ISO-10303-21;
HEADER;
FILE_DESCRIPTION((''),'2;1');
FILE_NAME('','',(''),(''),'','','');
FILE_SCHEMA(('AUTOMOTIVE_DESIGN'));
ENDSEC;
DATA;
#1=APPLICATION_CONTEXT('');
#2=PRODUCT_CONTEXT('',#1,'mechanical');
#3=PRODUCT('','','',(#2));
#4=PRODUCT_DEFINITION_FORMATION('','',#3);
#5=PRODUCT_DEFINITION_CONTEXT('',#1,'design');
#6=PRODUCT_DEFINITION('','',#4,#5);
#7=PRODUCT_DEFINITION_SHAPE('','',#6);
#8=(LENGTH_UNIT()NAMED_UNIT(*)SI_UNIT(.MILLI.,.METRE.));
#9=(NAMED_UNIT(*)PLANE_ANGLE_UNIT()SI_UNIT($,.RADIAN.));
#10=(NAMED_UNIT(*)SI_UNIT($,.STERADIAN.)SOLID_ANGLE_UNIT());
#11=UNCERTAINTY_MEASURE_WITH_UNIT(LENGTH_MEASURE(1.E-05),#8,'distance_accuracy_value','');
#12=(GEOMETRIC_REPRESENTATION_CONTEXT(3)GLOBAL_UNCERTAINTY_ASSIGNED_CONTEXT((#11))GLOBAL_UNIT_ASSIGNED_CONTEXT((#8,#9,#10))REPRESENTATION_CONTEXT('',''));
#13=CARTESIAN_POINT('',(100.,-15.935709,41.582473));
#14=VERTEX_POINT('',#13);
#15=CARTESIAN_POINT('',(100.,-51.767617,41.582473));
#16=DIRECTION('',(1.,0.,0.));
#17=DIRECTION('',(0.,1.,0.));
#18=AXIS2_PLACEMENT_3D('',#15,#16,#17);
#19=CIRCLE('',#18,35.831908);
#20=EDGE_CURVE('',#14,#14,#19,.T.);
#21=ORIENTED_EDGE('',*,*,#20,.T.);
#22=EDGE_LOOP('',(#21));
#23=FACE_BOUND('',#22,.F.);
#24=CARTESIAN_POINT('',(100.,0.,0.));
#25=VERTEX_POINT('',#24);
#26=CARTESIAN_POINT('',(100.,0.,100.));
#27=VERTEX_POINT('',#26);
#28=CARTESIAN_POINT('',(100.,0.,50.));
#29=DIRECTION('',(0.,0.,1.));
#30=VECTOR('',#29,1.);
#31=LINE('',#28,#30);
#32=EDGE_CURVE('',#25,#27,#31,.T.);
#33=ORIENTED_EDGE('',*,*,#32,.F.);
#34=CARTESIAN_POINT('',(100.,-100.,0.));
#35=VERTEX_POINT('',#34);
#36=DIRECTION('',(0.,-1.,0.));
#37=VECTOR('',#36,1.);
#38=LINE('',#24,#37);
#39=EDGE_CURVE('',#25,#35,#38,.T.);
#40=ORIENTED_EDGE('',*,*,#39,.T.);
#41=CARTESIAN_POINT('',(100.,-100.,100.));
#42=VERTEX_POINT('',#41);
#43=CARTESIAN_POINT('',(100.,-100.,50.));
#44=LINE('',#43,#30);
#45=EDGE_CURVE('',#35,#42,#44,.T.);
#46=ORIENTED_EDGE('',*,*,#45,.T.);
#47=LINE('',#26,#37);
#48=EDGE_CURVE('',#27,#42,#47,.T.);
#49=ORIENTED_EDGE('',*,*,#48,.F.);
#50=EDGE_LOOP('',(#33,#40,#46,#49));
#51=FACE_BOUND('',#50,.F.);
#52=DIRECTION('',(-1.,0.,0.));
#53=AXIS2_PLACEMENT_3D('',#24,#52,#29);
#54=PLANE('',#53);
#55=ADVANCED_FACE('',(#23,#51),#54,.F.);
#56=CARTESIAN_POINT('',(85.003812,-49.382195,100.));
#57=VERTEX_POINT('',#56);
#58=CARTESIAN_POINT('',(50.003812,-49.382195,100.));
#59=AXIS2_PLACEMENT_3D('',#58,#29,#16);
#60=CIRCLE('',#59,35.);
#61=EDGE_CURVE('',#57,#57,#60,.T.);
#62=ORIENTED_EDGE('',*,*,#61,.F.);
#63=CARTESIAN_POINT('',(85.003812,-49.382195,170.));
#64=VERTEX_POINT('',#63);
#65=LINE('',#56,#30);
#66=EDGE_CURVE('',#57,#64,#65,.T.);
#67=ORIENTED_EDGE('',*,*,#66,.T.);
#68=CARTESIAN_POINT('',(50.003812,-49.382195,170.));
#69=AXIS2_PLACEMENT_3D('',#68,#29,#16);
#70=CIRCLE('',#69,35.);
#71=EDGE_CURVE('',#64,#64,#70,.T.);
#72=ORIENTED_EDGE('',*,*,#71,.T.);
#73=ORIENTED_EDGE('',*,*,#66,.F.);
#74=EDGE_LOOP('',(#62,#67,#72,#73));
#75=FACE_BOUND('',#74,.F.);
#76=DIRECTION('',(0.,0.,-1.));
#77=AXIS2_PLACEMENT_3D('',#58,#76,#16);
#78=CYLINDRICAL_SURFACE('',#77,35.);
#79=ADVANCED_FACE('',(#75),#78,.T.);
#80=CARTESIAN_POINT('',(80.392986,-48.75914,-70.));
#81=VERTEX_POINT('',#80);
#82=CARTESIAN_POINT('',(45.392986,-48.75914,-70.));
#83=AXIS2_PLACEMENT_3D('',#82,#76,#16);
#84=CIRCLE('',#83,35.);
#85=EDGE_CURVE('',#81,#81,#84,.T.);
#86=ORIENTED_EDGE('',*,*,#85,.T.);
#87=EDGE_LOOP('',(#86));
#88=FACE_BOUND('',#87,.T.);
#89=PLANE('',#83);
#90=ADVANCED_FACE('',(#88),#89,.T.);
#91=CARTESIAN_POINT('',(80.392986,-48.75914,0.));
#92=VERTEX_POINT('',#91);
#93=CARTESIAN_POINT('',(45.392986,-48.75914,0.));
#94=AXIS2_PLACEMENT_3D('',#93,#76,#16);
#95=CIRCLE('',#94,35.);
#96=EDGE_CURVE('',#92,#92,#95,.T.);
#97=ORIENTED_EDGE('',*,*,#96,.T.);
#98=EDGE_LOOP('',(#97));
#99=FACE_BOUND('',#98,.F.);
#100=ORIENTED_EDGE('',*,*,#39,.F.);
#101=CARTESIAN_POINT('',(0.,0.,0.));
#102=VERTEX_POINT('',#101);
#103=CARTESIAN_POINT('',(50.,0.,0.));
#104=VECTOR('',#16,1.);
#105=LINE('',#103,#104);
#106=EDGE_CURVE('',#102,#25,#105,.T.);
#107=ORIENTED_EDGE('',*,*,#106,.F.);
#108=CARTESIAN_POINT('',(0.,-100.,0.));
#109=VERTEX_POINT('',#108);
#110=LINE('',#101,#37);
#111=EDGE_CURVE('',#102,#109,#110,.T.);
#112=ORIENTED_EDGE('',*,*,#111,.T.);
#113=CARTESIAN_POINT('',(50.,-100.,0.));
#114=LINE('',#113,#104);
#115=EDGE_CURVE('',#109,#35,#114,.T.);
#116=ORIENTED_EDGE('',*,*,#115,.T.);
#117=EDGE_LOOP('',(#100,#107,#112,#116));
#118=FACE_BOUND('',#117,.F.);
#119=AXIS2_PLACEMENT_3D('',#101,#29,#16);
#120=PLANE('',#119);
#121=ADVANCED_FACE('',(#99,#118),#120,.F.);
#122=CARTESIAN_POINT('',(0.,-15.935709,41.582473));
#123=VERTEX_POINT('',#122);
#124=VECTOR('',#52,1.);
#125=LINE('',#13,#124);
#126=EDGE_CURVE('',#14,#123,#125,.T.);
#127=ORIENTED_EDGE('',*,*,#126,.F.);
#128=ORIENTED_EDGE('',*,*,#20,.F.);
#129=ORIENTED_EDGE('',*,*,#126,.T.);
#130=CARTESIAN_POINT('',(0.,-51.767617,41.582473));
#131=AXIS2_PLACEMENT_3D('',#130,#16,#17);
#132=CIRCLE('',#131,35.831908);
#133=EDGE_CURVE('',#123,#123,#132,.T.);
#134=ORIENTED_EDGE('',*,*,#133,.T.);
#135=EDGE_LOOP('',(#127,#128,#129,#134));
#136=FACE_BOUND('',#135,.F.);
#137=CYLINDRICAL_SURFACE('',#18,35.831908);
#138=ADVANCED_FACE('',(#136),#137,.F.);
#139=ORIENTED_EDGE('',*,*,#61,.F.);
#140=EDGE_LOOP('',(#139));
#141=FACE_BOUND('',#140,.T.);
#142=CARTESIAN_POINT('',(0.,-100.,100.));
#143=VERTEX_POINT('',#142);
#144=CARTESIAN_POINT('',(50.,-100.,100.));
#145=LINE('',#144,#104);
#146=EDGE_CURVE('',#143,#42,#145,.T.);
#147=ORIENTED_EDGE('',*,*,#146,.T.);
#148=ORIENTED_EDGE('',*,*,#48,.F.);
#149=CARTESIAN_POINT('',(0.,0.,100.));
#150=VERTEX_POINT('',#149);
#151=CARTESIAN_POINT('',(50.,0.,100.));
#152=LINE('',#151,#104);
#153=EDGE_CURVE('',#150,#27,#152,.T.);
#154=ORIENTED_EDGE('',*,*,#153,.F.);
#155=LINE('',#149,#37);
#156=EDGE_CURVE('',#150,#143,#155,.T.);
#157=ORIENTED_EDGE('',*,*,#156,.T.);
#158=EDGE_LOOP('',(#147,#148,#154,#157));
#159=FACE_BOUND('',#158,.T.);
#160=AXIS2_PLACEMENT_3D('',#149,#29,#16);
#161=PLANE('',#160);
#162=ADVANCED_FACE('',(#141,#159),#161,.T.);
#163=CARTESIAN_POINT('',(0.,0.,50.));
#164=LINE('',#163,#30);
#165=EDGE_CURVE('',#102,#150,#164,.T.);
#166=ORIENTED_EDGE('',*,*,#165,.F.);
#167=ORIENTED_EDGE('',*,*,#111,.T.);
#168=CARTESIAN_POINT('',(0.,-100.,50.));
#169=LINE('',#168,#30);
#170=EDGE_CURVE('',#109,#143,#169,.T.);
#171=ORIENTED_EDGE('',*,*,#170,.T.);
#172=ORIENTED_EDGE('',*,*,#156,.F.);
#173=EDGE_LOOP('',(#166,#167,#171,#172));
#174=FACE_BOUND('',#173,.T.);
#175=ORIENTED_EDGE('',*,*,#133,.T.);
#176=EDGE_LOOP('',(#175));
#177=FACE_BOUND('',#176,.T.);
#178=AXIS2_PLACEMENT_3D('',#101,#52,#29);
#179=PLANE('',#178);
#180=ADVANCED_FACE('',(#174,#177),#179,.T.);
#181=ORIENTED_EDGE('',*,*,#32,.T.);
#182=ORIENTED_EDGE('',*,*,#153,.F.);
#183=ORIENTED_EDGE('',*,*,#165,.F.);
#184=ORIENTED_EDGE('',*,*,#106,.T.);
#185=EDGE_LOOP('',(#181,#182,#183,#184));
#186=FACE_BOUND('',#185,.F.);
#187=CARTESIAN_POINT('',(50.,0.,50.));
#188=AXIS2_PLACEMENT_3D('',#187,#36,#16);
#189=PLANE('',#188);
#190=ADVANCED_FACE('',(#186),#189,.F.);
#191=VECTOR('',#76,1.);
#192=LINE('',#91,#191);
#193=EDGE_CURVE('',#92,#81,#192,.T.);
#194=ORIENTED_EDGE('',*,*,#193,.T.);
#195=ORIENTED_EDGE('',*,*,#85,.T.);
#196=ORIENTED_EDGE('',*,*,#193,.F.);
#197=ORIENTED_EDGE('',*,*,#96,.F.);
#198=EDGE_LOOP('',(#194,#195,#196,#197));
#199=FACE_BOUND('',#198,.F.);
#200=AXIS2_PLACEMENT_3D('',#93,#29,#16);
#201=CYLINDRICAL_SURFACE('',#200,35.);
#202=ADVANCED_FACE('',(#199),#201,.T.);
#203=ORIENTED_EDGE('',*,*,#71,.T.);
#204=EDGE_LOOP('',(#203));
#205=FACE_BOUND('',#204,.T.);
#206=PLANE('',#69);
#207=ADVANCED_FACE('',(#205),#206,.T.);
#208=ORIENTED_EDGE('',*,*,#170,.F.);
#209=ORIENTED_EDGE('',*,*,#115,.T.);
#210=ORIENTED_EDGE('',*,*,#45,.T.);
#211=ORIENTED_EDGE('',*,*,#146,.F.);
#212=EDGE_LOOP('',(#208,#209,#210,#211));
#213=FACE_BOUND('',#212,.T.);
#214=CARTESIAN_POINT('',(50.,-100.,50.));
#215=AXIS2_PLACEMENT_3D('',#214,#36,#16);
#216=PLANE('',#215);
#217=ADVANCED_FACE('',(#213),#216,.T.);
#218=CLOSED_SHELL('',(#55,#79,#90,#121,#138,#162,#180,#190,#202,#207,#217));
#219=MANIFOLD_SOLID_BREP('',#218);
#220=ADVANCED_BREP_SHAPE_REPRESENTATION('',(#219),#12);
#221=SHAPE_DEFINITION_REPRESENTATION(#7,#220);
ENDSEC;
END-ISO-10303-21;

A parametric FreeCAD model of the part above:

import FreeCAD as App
import Part
import Sketcher

V = App.Vector
Q = App.Units.Quantity

doc = App.newDocument("Part")
params = doc.addObject("Spreadsheet::Sheet", "Params")
for row, (alias, value) in enumerate([
    ("sketch1_width", "100 mm"),
    ("pad1_length", "100 mm"),
    ("sketch2_diameter", "70 mm"),
    ("pad2_length", "70 mm"),
    ("sketch3_diameter", "70 mm"),
    ("pad3_length", "70 mm"),
], start=1):
    params.set(f"A{row}", alias)
    params.set(f"B{row}", "=" + value)
    params.setAlias(f"B{row}", alias)

body = doc.addObject("PartDesign::Body", "Body")

# Sketch on XZ plane
sketch1 = body.newObject("Sketcher::SketchObject", "Sketch")
sketch1.AttachmentSupport = (doc.getObject("XZ_Plane"), [""])
sketch1.MapMode = "FlatFace"
sketch1.addGeometry(Part.LineSegment(V(0, 100, 0), V(0, 0, 0)), False)
sketch1.addGeometry(Part.LineSegment(V(0, 0, 0), V(100, 0, 0)), False)
sketch1.addGeometry(Part.LineSegment(V(100, 0, 0), V(100, 100, 0)), False)
sketch1.addGeometry(Part.LineSegment(V(100, 100, 0), V(0, 100, 0)), False)
sketch1.addConstraint(Sketcher.Constraint("Coincident", 0, 2, 1, 1))
sketch1.addConstraint(Sketcher.Constraint("Coincident", 1, 2, 2, 1))
sketch1.addConstraint(Sketcher.Constraint("Coincident", 2, 2, 3, 1))
sketch1.addConstraint(Sketcher.Constraint("Coincident", 3, 2, 0, 1))
sketch1.addConstraint(Sketcher.Constraint("Vertical", 0))
sketch1.addConstraint(Sketcher.Constraint("Horizontal", 1))
sketch1.addConstraint(Sketcher.Constraint("Vertical", 2))
sketch1.addConstraint(Sketcher.Constraint("Horizontal", 3))
sketch1.addConstraint(Sketcher.Constraint("Coincident", 0, 2, -1, 1))
sketch1.addConstraint(Sketcher.Constraint("Equal", 3, 0))
sketch1.addConstraint(Sketcher.Constraint("DistanceX", 1, 1, 1, 2, Q("100 mm")))
sketch1.setExpression("Constraints[10]", "Params.sketch1_width")
pad1 = body.newObject("PartDesign::Pad", "Pad")
pad1.Profile = sketch1
pad1.setExpression("Length", "Params.pad1_length")

# Sketch on XY plane
sketch2 = body.newObject("Sketcher::SketchObject", "Sketch001")
sketch2.AttachmentSupport = (doc.getObject("XY_Plane"), [""])
sketch2.MapMode = "FlatFace"
sketch2.AttachmentOffset = App.Placement(V(0, 0, 100), App.Rotation())
sketch2.addGeometry(Part.Circle(V(50, -49, 0), V(0, 0, 1), 35), False)
sketch2.addConstraint(Sketcher.Constraint("Diameter", 0, Q("70 mm")))
sketch2.addConstraint(Sketcher.Constraint("DistanceX", -1, 1, 0, 3, Q("50.003812 mm")))
sketch2.addConstraint(Sketcher.Constraint("DistanceY", 0, 3, -1, 1, Q("49.382195 mm")))
sketch2.setExpression("Constraints[0]", "Params.sketch2_diameter")
pad2 = body.newObject("PartDesign::Pad", "Pad001")
pad2.Profile = sketch2
pad2.setExpression("Length", "Params.pad2_length")

# Sketch on XY plane
sketch3 = body.newObject("Sketcher::SketchObject", "Sketch002")
sketch3.AttachmentSupport = (doc.getObject("XY_Plane"), [""])
sketch3.MapMode = "FlatFace"
sketch3.addGeometry(Part.Circle(V(45, -49, 0), V(0, 0, 1), 35), False)
sketch3.addConstraint(Sketcher.Constraint("Diameter", 0, Q("70 mm")))
sketch3.addConstraint(Sketcher.Constraint("DistanceY", 0, 3, -1, 1, Q("48.75914 mm")))
sketch3.addConstraint(Sketcher.Constraint("DistanceX", -1, 1, 0, 3, Q("45.392986 mm")))
sketch3.setExpression("Constraints[0]", "Params.sketch3_diameter")
pad3 = body.newObject("PartDesign::Pad", "Pad002")
pad3.Profile = sketch3
pad3.setExpression("Length", "Params.pad3_length")
pad3.Reversed = True

# Sketch on YZ plane
sketch4 = body.newObject("Sketcher::SketchObject", "Sketch003")
sketch4.AttachmentSupport = (doc.getObject("YZ_Plane"), [""])
sketch4.MapMode = "FlatFace"
sketch4.AttachmentOffset = App.Placement(V(0, 0, 100), App.Rotation())
sketch4.addGeometry(Part.Circle(V(-52, 42, 0), V(0, 0, 1), 36), False)
sketch4.addConstraint(Sketcher.Constraint("Diameter", 0, Q("71.663816 mm")))
sketch4.addConstraint(Sketcher.Constraint("DistanceX", 0, 3, -1, 1, Q("51.767617 mm")))
sketch4.addConstraint(Sketcher.Constraint("DistanceY", -1, 1, 0, 3, Q("41.582473 mm")))
pocket1 = body.newObject("PartDesign::Pocket", "Pocket")
pocket1.Profile = sketch4
pocket1.Type = "ThroughAll"

doc.recompute()
